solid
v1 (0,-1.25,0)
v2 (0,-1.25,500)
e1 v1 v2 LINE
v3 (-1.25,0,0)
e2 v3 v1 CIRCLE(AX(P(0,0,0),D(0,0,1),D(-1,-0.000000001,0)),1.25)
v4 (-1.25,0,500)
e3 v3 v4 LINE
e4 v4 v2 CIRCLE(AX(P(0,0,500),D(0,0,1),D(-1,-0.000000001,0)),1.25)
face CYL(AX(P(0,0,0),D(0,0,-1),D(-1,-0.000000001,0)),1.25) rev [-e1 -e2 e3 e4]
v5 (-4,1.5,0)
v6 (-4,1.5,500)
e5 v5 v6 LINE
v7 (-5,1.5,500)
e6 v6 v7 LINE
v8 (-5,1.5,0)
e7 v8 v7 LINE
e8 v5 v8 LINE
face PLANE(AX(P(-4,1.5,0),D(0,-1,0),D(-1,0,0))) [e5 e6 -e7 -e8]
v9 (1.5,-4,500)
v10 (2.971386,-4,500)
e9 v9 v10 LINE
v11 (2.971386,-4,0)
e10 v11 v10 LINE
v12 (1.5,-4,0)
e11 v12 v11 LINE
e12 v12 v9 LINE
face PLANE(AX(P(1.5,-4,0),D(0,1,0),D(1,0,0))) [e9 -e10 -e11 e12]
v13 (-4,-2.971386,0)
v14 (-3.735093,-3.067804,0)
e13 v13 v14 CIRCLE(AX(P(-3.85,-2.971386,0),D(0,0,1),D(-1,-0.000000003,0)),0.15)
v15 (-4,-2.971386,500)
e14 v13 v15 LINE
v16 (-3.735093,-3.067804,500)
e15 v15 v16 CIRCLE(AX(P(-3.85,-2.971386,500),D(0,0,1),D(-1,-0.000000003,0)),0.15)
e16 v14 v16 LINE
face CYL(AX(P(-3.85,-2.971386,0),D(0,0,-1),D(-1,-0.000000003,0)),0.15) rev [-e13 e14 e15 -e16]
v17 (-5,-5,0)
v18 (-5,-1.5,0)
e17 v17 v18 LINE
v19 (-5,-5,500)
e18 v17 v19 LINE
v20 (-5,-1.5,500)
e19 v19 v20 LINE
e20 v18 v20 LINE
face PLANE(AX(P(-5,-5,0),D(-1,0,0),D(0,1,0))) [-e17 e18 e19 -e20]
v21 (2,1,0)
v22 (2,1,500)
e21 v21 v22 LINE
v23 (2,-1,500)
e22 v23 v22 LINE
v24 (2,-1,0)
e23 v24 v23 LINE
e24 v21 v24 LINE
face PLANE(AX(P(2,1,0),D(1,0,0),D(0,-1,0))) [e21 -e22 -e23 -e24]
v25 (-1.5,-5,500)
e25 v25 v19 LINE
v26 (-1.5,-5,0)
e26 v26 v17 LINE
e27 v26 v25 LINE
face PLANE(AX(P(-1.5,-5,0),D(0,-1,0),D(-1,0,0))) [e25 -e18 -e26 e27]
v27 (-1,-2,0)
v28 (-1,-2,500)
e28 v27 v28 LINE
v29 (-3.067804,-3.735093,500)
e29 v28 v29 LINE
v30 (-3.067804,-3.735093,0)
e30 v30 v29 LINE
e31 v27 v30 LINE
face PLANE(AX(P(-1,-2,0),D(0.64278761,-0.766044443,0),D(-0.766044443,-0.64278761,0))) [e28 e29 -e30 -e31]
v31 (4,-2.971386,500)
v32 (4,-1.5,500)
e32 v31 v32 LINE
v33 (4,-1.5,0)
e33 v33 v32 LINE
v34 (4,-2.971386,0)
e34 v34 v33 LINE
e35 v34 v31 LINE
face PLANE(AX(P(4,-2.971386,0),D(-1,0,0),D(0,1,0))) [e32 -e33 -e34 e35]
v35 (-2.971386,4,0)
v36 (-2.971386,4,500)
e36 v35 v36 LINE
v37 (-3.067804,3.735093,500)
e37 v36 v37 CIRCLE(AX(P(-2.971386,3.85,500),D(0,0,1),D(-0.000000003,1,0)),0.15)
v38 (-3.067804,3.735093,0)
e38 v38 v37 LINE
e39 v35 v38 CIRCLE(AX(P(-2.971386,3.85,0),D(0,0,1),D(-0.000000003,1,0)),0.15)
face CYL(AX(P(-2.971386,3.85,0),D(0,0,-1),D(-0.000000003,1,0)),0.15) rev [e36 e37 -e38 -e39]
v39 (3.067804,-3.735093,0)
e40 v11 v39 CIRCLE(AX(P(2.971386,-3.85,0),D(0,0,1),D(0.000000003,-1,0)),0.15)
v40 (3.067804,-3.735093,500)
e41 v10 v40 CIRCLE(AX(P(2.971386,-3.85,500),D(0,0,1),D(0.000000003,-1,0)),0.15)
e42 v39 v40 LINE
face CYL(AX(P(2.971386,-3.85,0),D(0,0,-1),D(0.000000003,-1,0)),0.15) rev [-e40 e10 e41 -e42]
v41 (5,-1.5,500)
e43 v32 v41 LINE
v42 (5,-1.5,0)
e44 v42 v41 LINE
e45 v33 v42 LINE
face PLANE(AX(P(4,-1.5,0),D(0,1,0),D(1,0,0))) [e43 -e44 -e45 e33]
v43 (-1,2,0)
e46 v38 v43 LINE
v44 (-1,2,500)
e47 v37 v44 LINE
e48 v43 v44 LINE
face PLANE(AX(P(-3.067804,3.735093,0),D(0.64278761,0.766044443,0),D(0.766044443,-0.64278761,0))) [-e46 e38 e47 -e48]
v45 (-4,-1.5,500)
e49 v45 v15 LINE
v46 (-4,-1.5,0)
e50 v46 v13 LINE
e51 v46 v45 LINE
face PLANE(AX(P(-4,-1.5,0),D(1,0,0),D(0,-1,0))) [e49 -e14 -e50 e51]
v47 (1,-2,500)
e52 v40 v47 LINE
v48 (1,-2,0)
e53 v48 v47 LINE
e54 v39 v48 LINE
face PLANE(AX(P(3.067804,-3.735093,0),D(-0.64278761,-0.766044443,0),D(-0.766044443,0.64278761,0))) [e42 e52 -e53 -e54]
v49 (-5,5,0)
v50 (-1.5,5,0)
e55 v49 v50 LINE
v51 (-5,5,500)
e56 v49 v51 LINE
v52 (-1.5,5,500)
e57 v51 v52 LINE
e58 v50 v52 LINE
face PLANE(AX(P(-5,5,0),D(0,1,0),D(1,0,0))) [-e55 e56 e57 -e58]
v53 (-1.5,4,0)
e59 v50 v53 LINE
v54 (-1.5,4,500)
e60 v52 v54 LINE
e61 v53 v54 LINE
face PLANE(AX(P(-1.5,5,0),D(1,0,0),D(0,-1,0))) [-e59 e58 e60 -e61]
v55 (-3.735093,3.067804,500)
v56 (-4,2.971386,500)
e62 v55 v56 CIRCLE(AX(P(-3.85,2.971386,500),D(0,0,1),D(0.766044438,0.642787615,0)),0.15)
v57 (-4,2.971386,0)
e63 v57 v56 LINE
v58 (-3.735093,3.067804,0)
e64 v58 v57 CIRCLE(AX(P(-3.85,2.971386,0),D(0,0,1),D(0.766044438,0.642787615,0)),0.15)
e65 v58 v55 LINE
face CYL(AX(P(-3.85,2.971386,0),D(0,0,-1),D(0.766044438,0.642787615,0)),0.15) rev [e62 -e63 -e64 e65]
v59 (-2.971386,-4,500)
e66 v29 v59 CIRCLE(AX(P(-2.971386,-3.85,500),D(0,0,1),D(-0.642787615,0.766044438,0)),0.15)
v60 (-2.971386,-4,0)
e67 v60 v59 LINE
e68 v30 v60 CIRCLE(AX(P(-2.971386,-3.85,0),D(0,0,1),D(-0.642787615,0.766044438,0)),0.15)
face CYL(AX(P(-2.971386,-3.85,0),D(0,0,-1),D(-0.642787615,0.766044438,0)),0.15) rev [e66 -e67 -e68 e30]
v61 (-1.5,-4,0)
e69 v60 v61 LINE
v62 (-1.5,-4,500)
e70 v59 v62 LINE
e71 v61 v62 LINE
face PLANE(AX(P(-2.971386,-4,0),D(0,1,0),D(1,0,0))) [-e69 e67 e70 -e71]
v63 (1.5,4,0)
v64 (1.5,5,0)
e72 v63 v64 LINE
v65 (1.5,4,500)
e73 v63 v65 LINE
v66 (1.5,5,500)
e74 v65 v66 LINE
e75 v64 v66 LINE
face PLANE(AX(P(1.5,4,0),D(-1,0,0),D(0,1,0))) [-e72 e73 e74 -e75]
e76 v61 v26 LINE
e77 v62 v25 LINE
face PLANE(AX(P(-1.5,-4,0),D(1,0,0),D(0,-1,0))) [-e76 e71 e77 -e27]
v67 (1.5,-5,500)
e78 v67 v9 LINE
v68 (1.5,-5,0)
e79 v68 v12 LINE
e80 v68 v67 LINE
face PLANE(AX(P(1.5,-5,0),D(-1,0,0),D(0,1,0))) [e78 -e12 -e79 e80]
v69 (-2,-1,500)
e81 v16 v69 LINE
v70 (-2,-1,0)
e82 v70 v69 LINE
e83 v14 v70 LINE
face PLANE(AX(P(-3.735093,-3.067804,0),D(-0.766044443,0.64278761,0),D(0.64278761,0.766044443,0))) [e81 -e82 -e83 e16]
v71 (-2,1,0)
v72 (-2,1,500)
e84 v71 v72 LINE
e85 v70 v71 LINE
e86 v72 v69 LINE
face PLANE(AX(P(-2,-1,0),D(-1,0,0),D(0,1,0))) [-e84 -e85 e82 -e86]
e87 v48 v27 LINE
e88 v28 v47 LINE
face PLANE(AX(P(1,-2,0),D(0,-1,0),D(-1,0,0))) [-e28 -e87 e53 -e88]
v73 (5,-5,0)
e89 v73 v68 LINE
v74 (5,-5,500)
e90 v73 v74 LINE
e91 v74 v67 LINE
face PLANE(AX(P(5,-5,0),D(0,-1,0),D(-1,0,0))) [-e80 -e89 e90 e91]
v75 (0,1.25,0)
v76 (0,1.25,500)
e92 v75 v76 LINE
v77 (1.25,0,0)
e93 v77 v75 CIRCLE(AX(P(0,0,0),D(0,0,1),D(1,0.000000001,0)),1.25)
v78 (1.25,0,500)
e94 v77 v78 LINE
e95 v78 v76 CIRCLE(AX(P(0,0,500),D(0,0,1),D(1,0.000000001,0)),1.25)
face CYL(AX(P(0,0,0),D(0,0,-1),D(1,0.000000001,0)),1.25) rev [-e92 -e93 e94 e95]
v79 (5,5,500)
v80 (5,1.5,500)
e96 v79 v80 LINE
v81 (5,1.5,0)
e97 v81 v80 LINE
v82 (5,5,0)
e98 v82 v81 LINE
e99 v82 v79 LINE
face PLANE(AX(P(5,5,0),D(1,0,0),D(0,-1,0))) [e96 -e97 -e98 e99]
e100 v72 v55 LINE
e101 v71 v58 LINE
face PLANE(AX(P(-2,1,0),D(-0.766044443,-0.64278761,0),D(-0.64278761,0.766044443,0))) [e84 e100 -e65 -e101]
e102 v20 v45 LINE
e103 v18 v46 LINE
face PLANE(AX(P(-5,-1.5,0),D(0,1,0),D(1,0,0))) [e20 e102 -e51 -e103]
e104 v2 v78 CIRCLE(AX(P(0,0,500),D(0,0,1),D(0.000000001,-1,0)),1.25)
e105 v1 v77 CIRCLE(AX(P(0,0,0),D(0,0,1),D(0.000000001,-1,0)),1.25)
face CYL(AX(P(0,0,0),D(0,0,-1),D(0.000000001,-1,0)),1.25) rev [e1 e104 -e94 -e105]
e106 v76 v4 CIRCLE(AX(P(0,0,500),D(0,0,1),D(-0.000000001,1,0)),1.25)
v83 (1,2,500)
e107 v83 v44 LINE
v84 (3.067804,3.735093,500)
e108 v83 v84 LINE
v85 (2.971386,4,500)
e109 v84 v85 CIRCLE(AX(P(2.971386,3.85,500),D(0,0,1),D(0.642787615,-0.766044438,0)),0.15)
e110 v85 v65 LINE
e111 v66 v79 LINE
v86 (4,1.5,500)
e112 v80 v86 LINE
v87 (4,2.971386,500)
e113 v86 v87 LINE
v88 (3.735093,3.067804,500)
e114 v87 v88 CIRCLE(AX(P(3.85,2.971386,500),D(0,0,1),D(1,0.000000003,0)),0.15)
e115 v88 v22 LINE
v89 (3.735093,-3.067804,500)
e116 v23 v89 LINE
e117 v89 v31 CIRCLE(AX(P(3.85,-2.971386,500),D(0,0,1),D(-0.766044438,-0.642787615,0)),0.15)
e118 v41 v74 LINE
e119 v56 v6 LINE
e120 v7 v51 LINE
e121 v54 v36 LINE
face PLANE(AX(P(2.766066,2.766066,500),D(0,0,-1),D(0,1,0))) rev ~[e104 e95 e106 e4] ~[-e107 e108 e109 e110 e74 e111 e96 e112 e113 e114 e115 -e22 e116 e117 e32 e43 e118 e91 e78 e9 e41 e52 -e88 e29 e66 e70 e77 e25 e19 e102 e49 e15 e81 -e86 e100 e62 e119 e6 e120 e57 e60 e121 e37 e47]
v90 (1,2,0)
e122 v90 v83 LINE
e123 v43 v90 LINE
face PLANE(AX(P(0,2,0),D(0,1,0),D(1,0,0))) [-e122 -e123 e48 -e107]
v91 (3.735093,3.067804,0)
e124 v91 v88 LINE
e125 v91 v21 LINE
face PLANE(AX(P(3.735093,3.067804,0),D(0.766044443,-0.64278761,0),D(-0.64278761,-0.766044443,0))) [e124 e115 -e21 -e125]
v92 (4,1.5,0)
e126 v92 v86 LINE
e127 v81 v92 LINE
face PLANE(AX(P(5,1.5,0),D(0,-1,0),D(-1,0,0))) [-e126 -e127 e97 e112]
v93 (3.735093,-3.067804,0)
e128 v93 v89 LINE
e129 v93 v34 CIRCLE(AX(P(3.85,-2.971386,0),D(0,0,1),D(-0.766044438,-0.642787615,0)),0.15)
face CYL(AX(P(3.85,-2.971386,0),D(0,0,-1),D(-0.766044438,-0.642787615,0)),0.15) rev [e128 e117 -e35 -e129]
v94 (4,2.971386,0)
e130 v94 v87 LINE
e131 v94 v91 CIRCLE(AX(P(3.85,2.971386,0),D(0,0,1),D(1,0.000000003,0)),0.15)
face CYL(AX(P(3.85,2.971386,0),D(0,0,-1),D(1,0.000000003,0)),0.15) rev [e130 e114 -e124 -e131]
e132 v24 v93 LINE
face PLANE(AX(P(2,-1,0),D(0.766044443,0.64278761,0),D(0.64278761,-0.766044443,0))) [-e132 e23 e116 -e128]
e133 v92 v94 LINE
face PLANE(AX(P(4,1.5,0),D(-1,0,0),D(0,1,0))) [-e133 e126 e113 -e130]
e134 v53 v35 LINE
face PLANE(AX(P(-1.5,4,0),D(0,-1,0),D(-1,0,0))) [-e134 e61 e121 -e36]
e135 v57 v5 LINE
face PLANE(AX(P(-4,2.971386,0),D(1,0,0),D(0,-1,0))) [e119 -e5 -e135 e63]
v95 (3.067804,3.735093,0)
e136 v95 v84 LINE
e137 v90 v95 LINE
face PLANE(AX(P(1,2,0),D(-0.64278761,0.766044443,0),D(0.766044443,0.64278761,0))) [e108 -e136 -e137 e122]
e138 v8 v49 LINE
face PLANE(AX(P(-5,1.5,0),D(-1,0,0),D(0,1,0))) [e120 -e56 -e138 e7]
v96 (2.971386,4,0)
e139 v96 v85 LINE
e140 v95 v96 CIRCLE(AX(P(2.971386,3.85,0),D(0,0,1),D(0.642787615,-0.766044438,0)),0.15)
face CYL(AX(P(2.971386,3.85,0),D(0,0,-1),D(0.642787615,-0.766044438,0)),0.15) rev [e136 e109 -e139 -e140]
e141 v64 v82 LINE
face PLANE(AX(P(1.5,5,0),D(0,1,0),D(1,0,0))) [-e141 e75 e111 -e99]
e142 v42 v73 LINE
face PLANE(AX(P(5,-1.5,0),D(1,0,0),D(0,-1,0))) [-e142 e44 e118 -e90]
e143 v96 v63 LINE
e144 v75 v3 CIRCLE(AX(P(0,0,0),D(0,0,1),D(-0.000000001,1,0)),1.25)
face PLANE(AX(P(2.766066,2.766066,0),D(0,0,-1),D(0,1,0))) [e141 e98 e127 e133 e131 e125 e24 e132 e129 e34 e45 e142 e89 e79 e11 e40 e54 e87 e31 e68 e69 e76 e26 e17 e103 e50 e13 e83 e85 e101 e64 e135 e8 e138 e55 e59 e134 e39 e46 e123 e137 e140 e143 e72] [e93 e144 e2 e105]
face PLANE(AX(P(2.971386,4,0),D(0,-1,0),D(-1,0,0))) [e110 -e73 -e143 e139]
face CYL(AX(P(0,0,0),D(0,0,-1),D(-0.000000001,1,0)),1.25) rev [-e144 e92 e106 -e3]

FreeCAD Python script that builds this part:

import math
import FreeCAD as App
import Part
import Sketcher
from FreeCAD import Vector
Q = App.Units.Quantity

doc = App.newDocument("Part")
params = doc.addObject("Spreadsheet::Sheet", "Params")
for row, (alias, value) in enumerate([
    ("sketch1_width", "1 mm"),
    ("sketch1_radius", "0.15 mm"),
    ("sketch1_radius2", "1.25 mm"),
    ("sketch1_width2", "3.5 mm"),
    ("pad1_length", "500 mm"),
], start=1):
    params.set(f"A{row}", alias)
    params.set(f"B{row}", "=" + value)
    params.setAlias(f"B{row}", alias)

body = doc.addObject("PartDesign::Body", "Body")

sketch1 = doc.addObject("Sketcher::SketchObject", "Sketch")
body.addObject(sketch1)
sketch1.AttachmentSupport = (doc.XY_Plane, [""])
sketch1.MapMode = "FlatFace"
sketch1.addGeometry([
    Part.LineSegment(Vector(0, 1.25, 0), Vector(0, 2, 0)),
    Part.LineSegment(Vector(0, 2, 0), Vector(-1, 2, 0)),
    Part.LineSegment(Vector(-1, 2, 0), Vector(-3.067804, 3.735093, 0)),
    Part.ArcOfCircle(Part.Circle(Vector(-2.971386, 3.85, 0), Vector(0, 0, 1), 0.15), math.radians(90), math.radians(230)),
    Part.LineSegment(Vector(-2.971386, 4, 0), Vector(-1.5, 4, 0)),
    Part.LineSegment(Vector(-1.5, 4, 0), Vector(-1.5, 5, 0)),
    Part.LineSegment(Vector(-1.5, 5, 0), Vector(-5, 5, 0)),
    Part.LineSegment(Vector(-5, 5, 0), Vector(-5, 1.5, 0)),
    Part.LineSegment(Vector(-5, 1.5, 0), Vector(-4, 1.5, 0)),
    Part.LineSegment(Vector(-4, 1.5, 0), Vector(-4, 2.971386, 0)),
    Part.ArcOfCircle(Part.Circle(Vector(-3.85, 2.971386, 0), Vector(0, 0, 1), 0.15), math.radians(40), math.radians(180)),
    Part.LineSegment(Vector(-3.735093, 3.067804, 0), Vector(-2, 1, 0)),
    Part.LineSegment(Vector(-2, 1, 0), Vector(-2, 0, 0)),
    Part.LineSegment(Vector(-2, 0, 0), Vector(-1.25, 0, 0)),
    Part.ArcOfCircle(Part.Circle(Vector(0, 0, 0), Vector(0, 0, 1), 1.25), math.radians(90), math.radians(180)),
], False)
sketch1.addConstraint([
    Sketcher.Constraint("Coincident", 0, 2, 1, 1),
    Sketcher.Constraint("Coincident", 1, 2, 2, 1),
    Sketcher.Constraint("Tangent", 2, 2, 3, 2),
    Sketcher.Constraint("Tangent", 3, 1, 4, 1),
    Sketcher.Constraint("Coincident", 4, 2, 5, 1),
    Sketcher.Constraint("Coincident", 5, 2, 6, 1),
    Sketcher.Constraint("Coincident", 6, 2, 7, 1),
    Sketcher.Constraint("Coincident", 7, 2, 8, 1),
    Sketcher.Constraint("Coincident", 8, 2, 9, 1),
    Sketcher.Constraint("Tangent", 9, 2, 10, 2),
    Sketcher.Constraint("Tangent", 10, 1, 11, 1),
    Sketcher.Constraint("Coincident", 11, 2, 12, 1),
    Sketcher.Constraint("Coincident", 12, 2, 13, 1),
    Sketcher.Constraint("Coincident", 13, 2, 14, 2),
    Sketcher.Constraint("Coincident", 14, 1, 0, 1),
    Sketcher.Constraint("Vertical", 0),
    Sketcher.Constraint("Horizontal", 1),
    Sketcher.Constraint("Horizontal", 4),
    Sketcher.Constraint("Vertical", 5),
    Sketcher.Constraint("Horizontal", 6),
    Sketcher.Constraint("Vertical", 7),
    Sketcher.Constraint("Horizontal", 8),
    Sketcher.Constraint("Vertical", 9),
    Sketcher.Constraint("Vertical", 12),
    Sketcher.Constraint("Horizontal", 13),
    Sketcher.Constraint("Coincident", 14, 3, -1, 1),
    Sketcher.Constraint("Equal", 3, 10),
    Sketcher.Constraint("PointOnObject", 0, 2, -2),
    Sketcher.Constraint("PointOnObject", 12, 2, -1),
    Sketcher.Constraint("Equal", 1, 8),
    Sketcher.Constraint("Equal", 13, 0),
    Sketcher.Constraint("Equal", 8, 5),
    Sketcher.Constraint("Equal", 6, 7),
    Sketcher.Constraint("Equal", 4, 9),
    Sketcher.Constraint("Equal", 5, 12),
    Sketcher.Constraint("Equal", 2, 11),
    Sketcher.Constraint("DistanceX", 1, 2, 1, 1, Q("1 mm")),
    Sketcher.Constraint("Angle", 2, Q("140 deg")),
    Sketcher.Constraint("Radius", 3, Q("0.15 mm")),
    Sketcher.Constraint("Radius", 14, Q("1.25 mm")),
    Sketcher.Constraint("DistanceX", 6, 2, 6, 1, Q("3.5 mm")),
    Sketcher.Constraint("DistanceY", -1, 1, 0, 2, Q("2 mm")),
    Sketcher.Constraint("DistanceY", -1, 1, 3, 1, Q("4 mm")),
])
sketch1.setExpression("Constraints[36]", "Params.sketch1_width")
sketch1.setExpression("Constraints[38]", "Params.sketch1_radius")
sketch1.setExpression("Constraints[39]", "Params.sketch1_radius2")
sketch1.setExpression("Constraints[40]", "Params.sketch1_width2")
pad1 = doc.addObject("PartDesign::Pad", "Pad")
body.addObject(pad1)
pad1.Profile = sketch1
pad1.setExpression("Length", "Params.pad1_length")
doc.recompute()

polarpattern = doc.addObject("PartDesign::PolarPattern", "PolarPattern")
body.addObject(polarpattern)
polarpattern.Originals = [pad1]
polarpattern.Axis = (doc.Z_Axis, [""])
polarpattern.Angle = 360
polarpattern.Occurrences = 4
body.Tip = polarpattern

doc.recompute()
